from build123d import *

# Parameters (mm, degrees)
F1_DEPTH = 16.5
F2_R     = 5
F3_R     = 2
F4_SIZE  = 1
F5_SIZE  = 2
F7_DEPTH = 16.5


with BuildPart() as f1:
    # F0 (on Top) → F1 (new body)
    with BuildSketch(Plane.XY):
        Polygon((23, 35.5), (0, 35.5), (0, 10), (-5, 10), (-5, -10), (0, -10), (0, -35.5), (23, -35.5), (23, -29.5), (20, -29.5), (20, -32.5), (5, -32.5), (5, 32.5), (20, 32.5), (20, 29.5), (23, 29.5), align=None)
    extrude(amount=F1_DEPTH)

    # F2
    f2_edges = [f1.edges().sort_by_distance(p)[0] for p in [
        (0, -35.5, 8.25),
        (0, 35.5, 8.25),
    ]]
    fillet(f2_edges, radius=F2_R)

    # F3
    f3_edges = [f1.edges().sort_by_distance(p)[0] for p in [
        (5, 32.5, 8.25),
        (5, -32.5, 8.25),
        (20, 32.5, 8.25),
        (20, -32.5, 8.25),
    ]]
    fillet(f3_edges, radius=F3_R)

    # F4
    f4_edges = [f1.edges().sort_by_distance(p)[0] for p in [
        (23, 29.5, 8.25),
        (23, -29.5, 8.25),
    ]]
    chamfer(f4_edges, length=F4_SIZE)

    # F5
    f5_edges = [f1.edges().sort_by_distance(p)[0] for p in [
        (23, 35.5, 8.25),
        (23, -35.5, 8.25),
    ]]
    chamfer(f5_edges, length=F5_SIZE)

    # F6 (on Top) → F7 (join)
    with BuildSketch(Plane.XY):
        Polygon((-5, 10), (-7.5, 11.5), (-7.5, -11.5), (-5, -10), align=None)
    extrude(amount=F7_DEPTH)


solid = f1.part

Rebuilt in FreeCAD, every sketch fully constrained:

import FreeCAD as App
import Part
import Sketcher
from FreeCAD import Vector
Q = App.Units.Quantity


def edges_at(feature, points):
    """Names of the edges that pass closest to the given points."""
    edges = feature.Shape.Edges
    near = lambda p: min(range(len(edges)), key=lambda i: edges[i].distToShape(Part.Vertex(*p))[0])
    return sorted({f"Edge{near(p) + 1}" for p in points})


def add_polygon(sketch, points):
    """Adds a closed chain of lines whose ends are joined by coincident constraints."""
    first, n = sketch.GeometryCount, len(points)
    for a, b in zip(points, points[1:] + points[:1]):
        sketch.addGeometry(Part.LineSegment(App.Vector(*a, 0), App.Vector(*b, 0)), False)
    for i in range(n):
        sketch.addConstraint(Sketcher.Constraint("Coincident", first + i, 2, first + (i + 1) % n, 1))

doc = App.newDocument("Part")
body = doc.addObject("PartDesign::Body", "Body")

# Sketch on XY plane
sketch1 = body.newObject("Sketcher::SketchObject", "Sketch")
sketch1.AttachmentSupport = (doc.getObject("XY_Plane"), [""])
sketch1.MapMode = "FlatFace"
add_polygon(sketch1, [(23, 35.5), (0, 35.5), (0, 10), (-5, 10), (-5, -10), (0, -10), (0, -35.5), (23, -35.5), (23, -29.5), (20, -29.5), (20, -32.5), (5, -32.5), (5, 32.5), (20, 32.5), (20, 29.5), (23, 29.5)])  # lines 0-15
sketch1.addConstraint(Sketcher.Constraint("Horizontal", 0))
sketch1.addConstraint(Sketcher.Constraint("Vertical", 1))
sketch1.addConstraint(Sketcher.Constraint("Horizontal", 2))
sketch1.addConstraint(Sketcher.Constraint("Vertical", 3))
sketch1.addConstraint(Sketcher.Constraint("Horizontal", 4))
sketch1.addConstraint(Sketcher.Constraint("Vertical", 5))
sketch1.addConstraint(Sketcher.Constraint("Horizontal", 6))
sketch1.addConstraint(Sketcher.Constraint("Vertical", 7))
sketch1.addConstraint(Sketcher.Constraint("Horizontal", 8))
sketch1.addConstraint(Sketcher.Constraint("Vertical", 9))
sketch1.addConstraint(Sketcher.Constraint("Horizontal", 10))
sketch1.addConstraint(Sketcher.Constraint("Vertical", 11))
sketch1.addConstraint(Sketcher.Constraint("Horizontal", 12))
sketch1.addConstraint(Sketcher.Constraint("Vertical", 13))
sketch1.addConstraint(Sketcher.Constraint("Horizontal", 14))
sketch1.addConstraint(Sketcher.Constraint("Vertical", 15))
sketch1.addConstraint(Sketcher.Constraint("Symmetric", 1, 2, 4, 2, -1, 1))
sketch1.addConstraint(Sketcher.Constraint("Symmetric", 0, 2, 5, 2, -1))
sketch1.addConstraint(Sketcher.Constraint("Symmetric", 9, 2, 12, 2, -1))
sketch1.addConstraint(Sketcher.Constraint("Symmetric", 7, 2, 14, 2, -1))
sketch1.addConstraint(Sketcher.Constraint("Equal", 14, 9))
sketch1.addConstraint(Sketcher.Constraint("DistanceX", 0, 2, 0, 1, Q("23 mm")))
sketch1.addConstraint(Sketcher.Constraint("DistanceX", 2, 2, 2, 1, Q("5 mm")))
sketch1.addConstraint(Sketcher.Constraint("DistanceX", 8, 2, 8, 1, Q("3 mm")))
sketch1.addConstraint(Sketcher.Constraint("DistanceX", 10, 2, 10, 1, Q("15 mm")))
sketch1.addConstraint(Sketcher.Constraint("DistanceY", 3, 2, 3, 1, Q("20 mm")))
sketch1.addConstraint(Sketcher.Constraint("DistanceY", 7, 1, 7, 2, Q("6 mm")))
sketch1.addConstraint(Sketcher.Constraint("DistanceY", 11, 1, 11, 2, Q("65 mm")))
pad1 = body.newObject("PartDesign::Pad", "Pad")
pad1.Profile = sketch1
pad1.Length = 16.5
doc.recompute()

fillet = body.newObject("PartDesign::Fillet", "Fillet")
fillet.Base = (pad1, edges_at(pad1, [(0, -35.5, 8.25), (0, 35.5, 8.25)]))
fillet.Radius = 5
doc.recompute()

fillet2 = body.newObject("PartDesign::Fillet", "Fillet001")
fillet2.Base = (fillet, edges_at(fillet, [
    (5, 32.5, 8.25),
    (5, -32.5, 8.25),
    (20, 32.5, 8.25),
    (20, -32.5, 8.25),
]))
fillet2.Radius = 2
doc.recompute()

chamfer = body.newObject("PartDesign::Chamfer", "Chamfer")
chamfer.Base = (fillet2, edges_at(fillet2, [(23, 29.5, 8.25), (23, -29.5, 8.25)]))
chamfer.Size = 1
doc.recompute()

chamfer2 = body.newObject("PartDesign::Chamfer", "Chamfer001")
chamfer2.Base = (chamfer, edges_at(chamfer, [(23, 35.5, 8.25), (23, -35.5, 8.25)]))
chamfer2.Size = 2

# Sketch on XY plane
sketch2 = body.newObject("Sketcher::SketchObject", "Sketch001")
sketch2.AttachmentSupport = (doc.getObject("XY_Plane"), [""])
sketch2.MapMode = "FlatFace"
add_polygon(sketch2, [(-5, 10), (-7.5, 11.5), (-7.5, -11.5), (-5, -10)])  # lines 0-3
sketch2.addConstraint(Sketcher.Constraint("Vertical", 1))
sketch2.addConstraint(Sketcher.Constraint("Vertical", 3))
sketch2.addConstraint(Sketcher.Constraint("Equal", 0, 2))
sketch2.addConstraint(Sketcher.Constraint("DistanceY", 1, 2, 1, 1, Q("23 mm")))
sketch2.addConstraint(Sketcher.Constraint("DistanceY", 3, 1, 3, 2, Q("20 mm")))
sketch2.addConstraint(Sketcher.Constraint("DistanceX", 2, 2, -1, 1, Q("5 mm")))
sketch2.addConstraint(Sketcher.Constraint("DistanceY", 2, 2, -1, 1, Q("10 mm")))
sketch2.addConstraint(Sketcher.Constraint("DistanceX", 0, 2, -1, 1, Q("7.5 mm")))
pad2 = body.newObject("PartDesign::Pad", "Pad001")
pad2.Profile = sketch2
pad2.Length = 16.5

doc.recompute()
